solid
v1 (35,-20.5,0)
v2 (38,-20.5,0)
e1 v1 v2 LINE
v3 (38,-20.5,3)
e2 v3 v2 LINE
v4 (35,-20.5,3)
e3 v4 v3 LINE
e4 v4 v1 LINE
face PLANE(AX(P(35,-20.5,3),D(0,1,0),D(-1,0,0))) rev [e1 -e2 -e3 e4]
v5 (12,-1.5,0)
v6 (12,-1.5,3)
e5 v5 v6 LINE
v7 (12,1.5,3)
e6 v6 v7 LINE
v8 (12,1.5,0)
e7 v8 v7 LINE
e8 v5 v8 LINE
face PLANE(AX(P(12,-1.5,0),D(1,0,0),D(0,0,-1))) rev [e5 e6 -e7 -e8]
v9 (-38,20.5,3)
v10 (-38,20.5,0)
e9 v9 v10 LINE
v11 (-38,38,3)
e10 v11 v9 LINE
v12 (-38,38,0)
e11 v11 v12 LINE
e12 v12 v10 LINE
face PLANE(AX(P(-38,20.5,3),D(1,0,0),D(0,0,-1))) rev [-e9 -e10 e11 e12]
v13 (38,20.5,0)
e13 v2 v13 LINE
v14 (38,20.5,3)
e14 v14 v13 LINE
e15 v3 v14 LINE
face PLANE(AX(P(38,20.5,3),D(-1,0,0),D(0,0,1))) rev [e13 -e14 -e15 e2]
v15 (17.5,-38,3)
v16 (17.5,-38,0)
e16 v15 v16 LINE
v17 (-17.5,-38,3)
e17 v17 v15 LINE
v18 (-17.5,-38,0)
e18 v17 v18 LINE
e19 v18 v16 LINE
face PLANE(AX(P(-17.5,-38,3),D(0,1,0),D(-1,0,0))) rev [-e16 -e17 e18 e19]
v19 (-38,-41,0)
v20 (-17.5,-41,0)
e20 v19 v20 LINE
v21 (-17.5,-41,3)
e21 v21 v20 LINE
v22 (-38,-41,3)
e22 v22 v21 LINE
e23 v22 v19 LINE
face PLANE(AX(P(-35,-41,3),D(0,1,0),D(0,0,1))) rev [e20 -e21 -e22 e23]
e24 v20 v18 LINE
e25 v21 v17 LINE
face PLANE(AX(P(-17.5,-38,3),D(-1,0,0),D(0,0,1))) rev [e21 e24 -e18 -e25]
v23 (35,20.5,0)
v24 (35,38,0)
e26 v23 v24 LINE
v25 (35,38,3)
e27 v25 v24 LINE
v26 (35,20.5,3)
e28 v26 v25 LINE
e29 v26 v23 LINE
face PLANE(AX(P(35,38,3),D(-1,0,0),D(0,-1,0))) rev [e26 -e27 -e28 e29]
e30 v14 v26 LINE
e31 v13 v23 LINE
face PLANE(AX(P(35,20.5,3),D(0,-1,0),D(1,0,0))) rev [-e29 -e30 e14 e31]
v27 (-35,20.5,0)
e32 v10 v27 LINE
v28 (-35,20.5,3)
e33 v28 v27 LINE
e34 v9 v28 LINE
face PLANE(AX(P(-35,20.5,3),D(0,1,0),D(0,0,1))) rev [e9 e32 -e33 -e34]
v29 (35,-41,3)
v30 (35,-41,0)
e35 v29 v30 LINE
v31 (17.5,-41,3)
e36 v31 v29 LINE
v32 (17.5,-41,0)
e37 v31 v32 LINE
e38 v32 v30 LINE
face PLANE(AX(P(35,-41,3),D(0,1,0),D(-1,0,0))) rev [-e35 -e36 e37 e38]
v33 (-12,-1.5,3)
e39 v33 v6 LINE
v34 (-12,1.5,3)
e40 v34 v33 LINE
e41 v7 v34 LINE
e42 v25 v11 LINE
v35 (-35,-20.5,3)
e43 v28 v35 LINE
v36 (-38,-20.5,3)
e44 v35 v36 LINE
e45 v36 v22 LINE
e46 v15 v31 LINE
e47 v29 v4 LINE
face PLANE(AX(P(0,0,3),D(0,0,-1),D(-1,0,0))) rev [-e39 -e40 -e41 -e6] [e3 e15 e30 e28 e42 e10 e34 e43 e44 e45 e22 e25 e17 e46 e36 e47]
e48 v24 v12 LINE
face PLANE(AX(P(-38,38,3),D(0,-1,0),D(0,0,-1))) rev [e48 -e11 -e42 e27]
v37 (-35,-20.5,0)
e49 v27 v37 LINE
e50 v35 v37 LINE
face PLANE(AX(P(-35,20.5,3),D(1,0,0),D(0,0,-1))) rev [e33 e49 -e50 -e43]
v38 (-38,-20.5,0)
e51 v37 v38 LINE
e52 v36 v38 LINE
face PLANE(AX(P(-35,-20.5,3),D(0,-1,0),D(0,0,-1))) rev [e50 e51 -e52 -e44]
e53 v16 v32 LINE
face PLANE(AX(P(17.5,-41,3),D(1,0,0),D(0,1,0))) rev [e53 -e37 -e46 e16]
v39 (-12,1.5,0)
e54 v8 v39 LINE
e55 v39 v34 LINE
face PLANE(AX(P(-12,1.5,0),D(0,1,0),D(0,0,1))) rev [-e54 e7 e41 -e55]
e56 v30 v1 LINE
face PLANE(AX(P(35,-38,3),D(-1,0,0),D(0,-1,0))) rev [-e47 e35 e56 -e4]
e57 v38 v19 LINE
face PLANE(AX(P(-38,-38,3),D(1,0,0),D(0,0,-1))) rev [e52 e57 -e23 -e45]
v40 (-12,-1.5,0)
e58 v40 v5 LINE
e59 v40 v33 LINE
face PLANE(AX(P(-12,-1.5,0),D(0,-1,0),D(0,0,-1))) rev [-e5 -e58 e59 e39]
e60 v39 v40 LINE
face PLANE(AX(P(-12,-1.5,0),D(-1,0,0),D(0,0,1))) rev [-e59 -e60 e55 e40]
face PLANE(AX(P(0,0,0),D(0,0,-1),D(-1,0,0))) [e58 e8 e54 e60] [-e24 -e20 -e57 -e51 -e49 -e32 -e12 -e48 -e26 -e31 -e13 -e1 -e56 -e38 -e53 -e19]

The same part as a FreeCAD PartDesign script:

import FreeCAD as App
import Part
import Sketcher

V = App.Vector
Q = App.Units.Quantity

doc = App.newDocument("Part")
body = doc.addObject("PartDesign::Body", "Body")

# Sketch on XY plane
sketch1 = body.newObject("Sketcher::SketchObject", "Sketch")
sketch1.AttachmentSupport = (doc.getObject("XY_Plane"), [""])
sketch1.MapMode = "FlatFace"
sketch1.addGeometry(Part.LineSegment(V(35, 38, 0), V(-38, 38, 0)), False)
sketch1.addGeometry(Part.LineSegment(V(-38, 38, 0), V(-38, 20.5, 0)), False)
sketch1.addGeometry(Part.LineSegment(V(-38, 20.5, 0), V(-35, 20.5, 0)), False)
sketch1.addGeometry(Part.LineSegment(V(-35, 20.5, 0), V(-35, -20.5, 0)), False)
sketch1.addGeometry(Part.LineSegment(V(-35, -20.5, 0), V(-38, -20.5, 0)), False)
sketch1.addGeometry(Part.LineSegment(V(-38, -20.5, 0), V(-38, -41, 0)), False)
sketch1.addGeometry(Part.LineSegment(V(-38, -41, 0), V(-17.5, -41, 0)), False)
sketch1.addGeometry(Part.LineSegment(V(-17.5, -41, 0), V(-17.5, -38, 0)), False)
sketch1.addGeometry(Part.LineSegment(V(-17.5, -38, 0), V(17.5, -38, 0)), False)
sketch1.addGeometry(Part.LineSegment(V(17.5, -38, 0), V(17.5, -41, 0)), False)
sketch1.addGeometry(Part.LineSegment(V(17.5, -41, 0), V(35, -41, 0)), False)
sketch1.addGeometry(Part.LineSegment(V(35, -41, 0), V(35, -20.5, 0)), False)
sketch1.addGeometry(Part.LineSegment(V(35, -20.5, 0), V(38, -20.5, 0)), False)
sketch1.addGeometry(Part.LineSegment(V(38, -20.5, 0), V(38, 20.5, 0)), False)
sketch1.addGeometry(Part.LineSegment(V(38, 20.5, 0), V(35, 20.5, 0)), False)
sketch1.addGeometry(Part.LineSegment(V(35, 20.5, 0), V(35, 38, 0)), False)
sketch1.addConstraint(Sketcher.Constraint("Coincident", 0, 2, 1, 1))
sketch1.addConstraint(Sketcher.Constraint("Coincident", 1, 2, 2, 1))
sketch1.addConstraint(Sketcher.Constraint("Coincident", 2, 2, 3, 1))
sketch1.addConstraint(Sketcher.Constraint("Coincident", 3, 2, 4, 1))
sketch1.addConstraint(Sketcher.Constraint("Coincident", 4, 2, 5, 1))
sketch1.addConstraint(Sketcher.Constraint("Coincident", 5, 2, 6, 1))
sketch1.addConstraint(Sketcher.Constraint("Coincident", 6, 2, 7, 1))
sketch1.addConstraint(Sketcher.Constraint("Coincident", 7, 2, 8, 1))
sketch1.addConstraint(Sketcher.Constraint("Coincident", 8, 2, 9, 1))
sketch1.addConstraint(Sketcher.Constraint("Coincident", 9, 2, 10, 1))
sketch1.addConstraint(Sketcher.Constraint("Coincident", 10, 2, 11, 1))
sketch1.addConstraint(Sketcher.Constraint("Coincident", 11, 2, 12, 1))
sketch1.addConstraint(Sketcher.Constraint("Coincident", 12, 2, 13, 1))
sketch1.addConstraint(Sketcher.Constraint("Coincident", 13, 2, 14, 1))
sketch1.addConstraint(Sketcher.Constraint("Coincident", 14, 2, 15, 1))
sketch1.addConstraint(Sketcher.Constraint("Coincident", 15, 2, 0, 1))
sketch1.addConstraint(Sketcher.Constraint("Horizontal", 0))
sketch1.addConstraint(Sketcher.Constraint("Vertical", 1))
sketch1.addConstraint(Sketcher.Constraint("Horizontal", 2))
sketch1.addConstraint(Sketcher.Constraint("Vertical", 3))
sketch1.addConstraint(Sketcher.Constraint("Horizontal", 4))
sketch1.addConstraint(Sketcher.Constraint("Vertical", 5))
sketch1.addConstraint(Sketcher.Constraint("Horizontal", 6))
sketch1.addConstraint(Sketcher.Constraint("Vertical", 7))
sketch1.addConstraint(Sketcher.Constraint("Horizontal", 8))
sketch1.addConstraint(Sketcher.Constraint("Vertical", 9))
sketch1.addConstraint(Sketcher.Constraint("Horizontal", 10))
sketch1.addConstraint(Sketcher.Constraint("Vertical", 11))
sketch1.addConstraint(Sketcher.Constraint("Horizontal", 12))
sketch1.addConstraint(Sketcher.Constraint("Vertical", 13))
sketch1.addConstraint(Sketcher.Constraint("Horizontal", 14))
sketch1.addConstraint(Sketcher.Constraint("Vertical", 15))
sketch1.addConstraint(Sketcher.Constraint("Symmetric", 2, 2, 11, 2, -1, 1))
sketch1.addConstraint(Sketcher.Constraint("Symmetric", 4, 2, 13, 2, -1, 1))
sketch1.addConstraint(Sketcher.Constraint("Symmetric", 6, 2, 9, 2, -2))
sketch1.addConstraint(Sketcher.Constraint("Symmetric", 1, 2, 13, 2, -2))
sketch1.addConstraint(Sketcher.Constraint("Vertical", 11, 2, 14, 2))
sketch1.addConstraint(Sketcher.Constraint("Equal", 10, 1))
sketch1.addConstraint(Sketcher.Constraint("Equal", 6, 5))
sketch1.addConstraint(Sketcher.Constraint("Equal", 14, 7))
sketch1.addConstraint(Sketcher.Constraint("DistanceX", 0, 2, 0, 1, Q("73 mm")))
sketch1.addConstraint(Sketcher.Constraint("DistanceX", 2, 1, 2, 2, Q("3 mm")))
sketch1.addConstraint(Sketcher.Constraint("DistanceX", 8, 1, 8, 2, Q("35 mm")))
sketch1.addConstraint(Sketcher.Constraint("DistanceY", 3, 2, 3, 1, Q("41 mm")))
pad1 = body.newObject("PartDesign::Pad", "Pad")
pad1.Profile = sketch1
pad1.Length = 3

# Sketch on XY plane
sketch2 = body.newObject("Sketcher::SketchObject", "Sketch001")
sketch2.AttachmentSupport = (doc.getObject("XY_Plane"), [""])
sketch2.MapMode = "FlatFace"
sketch2.AttachmentOffset = App.Placement(V(0, 0, 3), App.Rotation())
sketch2.addGeometry(Part.LineSegment(V(-12, 1.5, 0), V(-12, -1.5, 0)), False)
sketch2.addGeometry(Part.LineSegment(V(-12, -1.5, 0), V(12, -1.5, 0)), False)
sketch2.addGeometry(Part.LineSegment(V(12, -1.5, 0), V(12, 1.5, 0)), False)
sketch2.addGeometry(Part.LineSegment(V(12, 1.5, 0), V(-12, 1.5, 0)), False)
sketch2.addConstraint(Sketcher.Constraint("Coincident", 0, 2, 1, 1))
sketch2.addConstraint(Sketcher.Constraint("Coincident", 1, 2, 2, 1))
sketch2.addConstraint(Sketcher.Constraint("Coincident", 2, 2, 3, 1))
sketch2.addConstraint(Sketcher.Constraint("Coincident", 3, 2, 0, 1))
sketch2.addConstraint(Sketcher.Constraint("Vertical", 0))
sketch2.addConstraint(Sketcher.Constraint("Horizontal", 1))
sketch2.addConstraint(Sketcher.Constraint("Vertical", 2))
sketch2.addConstraint(Sketcher.Constraint("Horizontal", 3))
sketch2.addConstraint(Sketcher.Constraint("Symmetric", 0, 2, 2, 2, -1, 1))
sketch2.addConstraint(Sketcher.Constraint("DistanceX", 1, 1, 1, 2, Q("24 mm")))
sketch2.addConstraint(Sketcher.Constraint("DistanceY", 0, 2, 0, 1, Q("3 mm")))
pocket1 = body.newObject("PartDesign::Pocket", "Pocket")
pocket1.Profile = sketch2
pocket1.Length = 3

doc.recompute()
